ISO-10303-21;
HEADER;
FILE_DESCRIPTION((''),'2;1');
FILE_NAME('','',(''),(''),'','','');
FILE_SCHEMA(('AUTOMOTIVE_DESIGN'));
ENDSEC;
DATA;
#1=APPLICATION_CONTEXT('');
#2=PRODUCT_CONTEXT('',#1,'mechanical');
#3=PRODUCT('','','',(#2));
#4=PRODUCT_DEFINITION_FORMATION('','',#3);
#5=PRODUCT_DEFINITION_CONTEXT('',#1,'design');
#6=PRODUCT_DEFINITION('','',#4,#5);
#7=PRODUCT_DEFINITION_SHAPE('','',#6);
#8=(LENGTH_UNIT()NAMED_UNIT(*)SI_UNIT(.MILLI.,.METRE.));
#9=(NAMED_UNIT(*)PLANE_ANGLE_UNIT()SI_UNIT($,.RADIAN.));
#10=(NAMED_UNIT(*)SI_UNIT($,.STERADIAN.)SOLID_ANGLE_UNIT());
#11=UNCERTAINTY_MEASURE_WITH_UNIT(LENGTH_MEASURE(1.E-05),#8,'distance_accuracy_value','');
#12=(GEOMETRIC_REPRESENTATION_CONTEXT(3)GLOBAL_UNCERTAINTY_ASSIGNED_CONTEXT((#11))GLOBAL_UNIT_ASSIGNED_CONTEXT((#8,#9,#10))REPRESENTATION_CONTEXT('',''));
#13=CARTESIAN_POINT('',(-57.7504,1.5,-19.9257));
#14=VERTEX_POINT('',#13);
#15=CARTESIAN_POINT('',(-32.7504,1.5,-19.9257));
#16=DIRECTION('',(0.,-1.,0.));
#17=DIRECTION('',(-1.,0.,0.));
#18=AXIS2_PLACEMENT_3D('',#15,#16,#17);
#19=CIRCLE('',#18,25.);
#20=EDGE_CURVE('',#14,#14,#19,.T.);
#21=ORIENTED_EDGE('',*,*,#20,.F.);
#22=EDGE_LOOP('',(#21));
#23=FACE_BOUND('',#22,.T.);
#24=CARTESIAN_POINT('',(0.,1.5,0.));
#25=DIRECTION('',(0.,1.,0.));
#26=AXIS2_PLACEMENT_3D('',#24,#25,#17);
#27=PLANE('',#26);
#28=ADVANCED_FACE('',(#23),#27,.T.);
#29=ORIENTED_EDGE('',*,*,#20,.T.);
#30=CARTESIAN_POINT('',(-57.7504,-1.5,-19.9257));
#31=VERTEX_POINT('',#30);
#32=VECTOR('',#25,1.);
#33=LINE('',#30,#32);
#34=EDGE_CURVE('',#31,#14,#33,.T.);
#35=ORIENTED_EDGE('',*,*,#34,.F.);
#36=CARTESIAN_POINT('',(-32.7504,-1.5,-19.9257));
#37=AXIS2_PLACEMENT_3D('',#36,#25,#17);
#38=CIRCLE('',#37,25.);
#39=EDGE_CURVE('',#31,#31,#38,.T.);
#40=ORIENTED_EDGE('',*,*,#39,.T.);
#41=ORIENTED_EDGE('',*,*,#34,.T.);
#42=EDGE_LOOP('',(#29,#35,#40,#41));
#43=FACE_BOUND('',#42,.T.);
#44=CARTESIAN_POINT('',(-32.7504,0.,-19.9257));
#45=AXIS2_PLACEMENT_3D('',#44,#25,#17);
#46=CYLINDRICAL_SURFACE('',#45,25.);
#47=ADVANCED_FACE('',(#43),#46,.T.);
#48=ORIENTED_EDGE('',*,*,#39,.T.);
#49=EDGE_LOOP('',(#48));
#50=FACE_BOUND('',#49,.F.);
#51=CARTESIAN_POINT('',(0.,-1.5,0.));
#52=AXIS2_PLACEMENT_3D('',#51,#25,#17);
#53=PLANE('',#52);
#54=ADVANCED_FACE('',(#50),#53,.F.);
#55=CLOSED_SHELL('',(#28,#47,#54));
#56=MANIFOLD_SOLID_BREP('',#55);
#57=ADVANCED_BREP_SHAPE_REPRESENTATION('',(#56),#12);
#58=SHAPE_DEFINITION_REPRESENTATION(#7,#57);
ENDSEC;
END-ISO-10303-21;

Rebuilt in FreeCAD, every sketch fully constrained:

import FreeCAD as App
import Part
import Sketcher

V = App.Vector
Q = App.Units.Quantity

doc = App.newDocument("Part")
body = doc.addObject("PartDesign::Body", "Body")

sketch1 = doc.addObject("Sketcher::SketchObject", "Sketch")
body.addObject(sketch1)
sketch1.AttachmentSupport = (doc.XZ_Plane, [""])
sketch1.MapMode = "FlatFace"
sketch1.addGeometry(Part.Circle(V(-33, -20, 0), V(0, 0, 1), 25), False)
sketch1.addConstraint([
    Sketcher.Constraint("Diameter", 0, Q("50 mm")),
    Sketcher.Constraint("DistanceX", 0, 3, -1, 1, Q("32.7504 mm")),
    Sketcher.Constraint("DistanceY", 0, 3, -1, 1, Q("19.9257 mm")),
])
pad1 = doc.addObject("PartDesign::Pad", "Pad")
body.addObject(pad1)
pad1.Profile = sketch1
pad1.Type = "TwoLengths"
pad1.Length = 1.5
pad1.Length2 = 1.5
pad1.Reversed = True

doc.recompute()
